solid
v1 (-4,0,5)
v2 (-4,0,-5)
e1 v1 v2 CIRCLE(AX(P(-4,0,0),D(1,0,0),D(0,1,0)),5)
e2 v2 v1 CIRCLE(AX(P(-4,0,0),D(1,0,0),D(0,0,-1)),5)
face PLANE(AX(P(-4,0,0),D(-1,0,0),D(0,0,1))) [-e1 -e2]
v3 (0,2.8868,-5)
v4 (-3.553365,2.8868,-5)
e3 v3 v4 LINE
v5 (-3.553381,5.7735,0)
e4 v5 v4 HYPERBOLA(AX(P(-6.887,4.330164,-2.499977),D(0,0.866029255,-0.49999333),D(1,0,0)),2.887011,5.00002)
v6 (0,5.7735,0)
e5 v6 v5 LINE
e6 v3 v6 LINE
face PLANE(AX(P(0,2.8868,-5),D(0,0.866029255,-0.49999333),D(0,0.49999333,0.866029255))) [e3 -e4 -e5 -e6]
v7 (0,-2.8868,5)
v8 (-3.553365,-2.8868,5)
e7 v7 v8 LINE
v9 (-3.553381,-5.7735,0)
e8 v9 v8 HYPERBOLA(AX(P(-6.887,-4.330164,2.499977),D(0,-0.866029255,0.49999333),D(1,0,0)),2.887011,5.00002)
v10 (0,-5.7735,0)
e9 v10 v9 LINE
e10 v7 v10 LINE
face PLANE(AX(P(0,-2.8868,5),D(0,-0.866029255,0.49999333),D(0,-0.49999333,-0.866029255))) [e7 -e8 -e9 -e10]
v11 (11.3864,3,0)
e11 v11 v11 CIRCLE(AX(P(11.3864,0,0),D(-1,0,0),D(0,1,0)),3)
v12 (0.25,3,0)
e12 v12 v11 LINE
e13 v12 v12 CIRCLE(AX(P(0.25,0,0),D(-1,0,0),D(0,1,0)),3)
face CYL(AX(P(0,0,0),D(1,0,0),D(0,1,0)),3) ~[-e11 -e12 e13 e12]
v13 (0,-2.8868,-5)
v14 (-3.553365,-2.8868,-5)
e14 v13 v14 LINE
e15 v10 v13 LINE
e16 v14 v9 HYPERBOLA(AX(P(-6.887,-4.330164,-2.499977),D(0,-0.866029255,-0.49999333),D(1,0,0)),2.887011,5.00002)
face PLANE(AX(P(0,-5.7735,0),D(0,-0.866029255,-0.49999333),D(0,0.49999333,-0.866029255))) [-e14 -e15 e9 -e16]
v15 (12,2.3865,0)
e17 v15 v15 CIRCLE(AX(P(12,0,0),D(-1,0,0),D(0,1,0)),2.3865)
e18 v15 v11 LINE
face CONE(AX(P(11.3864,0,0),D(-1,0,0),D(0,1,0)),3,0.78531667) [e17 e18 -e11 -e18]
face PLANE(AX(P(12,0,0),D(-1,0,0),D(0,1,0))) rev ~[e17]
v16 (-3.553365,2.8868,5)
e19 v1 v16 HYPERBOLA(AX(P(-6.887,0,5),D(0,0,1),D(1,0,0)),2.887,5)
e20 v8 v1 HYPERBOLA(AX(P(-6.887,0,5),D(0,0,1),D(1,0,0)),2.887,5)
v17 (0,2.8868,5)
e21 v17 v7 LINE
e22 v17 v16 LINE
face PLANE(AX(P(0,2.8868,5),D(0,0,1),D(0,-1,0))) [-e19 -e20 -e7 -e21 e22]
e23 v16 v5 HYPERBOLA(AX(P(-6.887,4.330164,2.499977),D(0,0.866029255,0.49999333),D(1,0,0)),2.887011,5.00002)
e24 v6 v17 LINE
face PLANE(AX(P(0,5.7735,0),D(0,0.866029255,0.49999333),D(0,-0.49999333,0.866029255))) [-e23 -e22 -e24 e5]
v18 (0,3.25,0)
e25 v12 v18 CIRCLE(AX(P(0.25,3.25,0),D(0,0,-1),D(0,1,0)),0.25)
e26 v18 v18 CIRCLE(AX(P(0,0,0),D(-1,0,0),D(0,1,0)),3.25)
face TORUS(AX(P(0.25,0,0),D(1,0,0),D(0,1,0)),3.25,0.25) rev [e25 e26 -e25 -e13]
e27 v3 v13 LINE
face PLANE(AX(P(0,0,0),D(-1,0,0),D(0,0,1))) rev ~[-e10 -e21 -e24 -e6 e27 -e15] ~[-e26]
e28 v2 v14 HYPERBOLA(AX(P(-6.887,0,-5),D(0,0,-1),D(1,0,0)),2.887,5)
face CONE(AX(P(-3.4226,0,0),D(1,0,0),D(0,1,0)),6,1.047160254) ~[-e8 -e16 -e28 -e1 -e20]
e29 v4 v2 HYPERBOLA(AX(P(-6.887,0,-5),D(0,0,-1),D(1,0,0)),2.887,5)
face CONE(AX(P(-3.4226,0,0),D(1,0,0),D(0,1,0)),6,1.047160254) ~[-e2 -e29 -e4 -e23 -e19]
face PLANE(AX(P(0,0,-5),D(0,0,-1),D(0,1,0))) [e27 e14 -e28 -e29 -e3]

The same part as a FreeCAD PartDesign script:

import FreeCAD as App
import Part
import Sketcher

V = App.Vector
Q = App.Units.Quantity


def edges_at(feature, points):
    """Names of the edges that pass closest to the given points."""
    edges = feature.Shape.Edges
    near = lambda p: min(range(len(edges)), key=lambda i: edges[i].distToShape(Part.Vertex(*p))[0])
    return sorted({f"Edge{near(p) + 1}" for p in points})


def add_polygon(sketch, points):
    """Adds a closed chain of lines whose ends are joined by coincident constraints."""
    first, n = sketch.GeometryCount, len(points)
    for a, b in zip(points, points[1:] + points[:1]):
        sketch.addGeometry(Part.LineSegment(App.Vector(*a, 0), App.Vector(*b, 0)), False)
    for i in range(n):
        sketch.addConstraint(Sketcher.Constraint("Coincident", first + i, 2, first + (i + 1) % n, 1))

doc = App.newDocument("Part")
params = doc.addObject("Spreadsheet::Sheet", "Params")
for row, (alias, value) in enumerate([
    ("sketch1_width", "12 mm"),
    ("sketch1_height", "3 mm"),
    ("revolution_angle", "360 deg"),
    ("pad1_length", "4 mm"),
    ("sketch3_height", "1 mm"),
    ("groove_angle", "360 deg"),
    ("chamfer_size", "0.6135 mm"),
    ("chamfer_size2", "0.6136 mm"),
    ("fillet_radius", "0.25 mm"),
], start=1):
    params.set(f"A{row}", alias)
    params.set(f"B{row}", "=" + value)
    params.setAlias(f"B{row}", alias)

body = doc.addObject("PartDesign::Body", "Body")

sketch1 = body.newObject("Sketcher::SketchObject", "Sketch")
sketch1.AttachmentSupport = (doc.getObject("XY_Plane"), [""])
sketch1.MapMode = "FlatFace"
add_polygon(sketch1, [(12, 3), (0, 3), (0, 0), (12, 0)])
sketch1.addConstraint(Sketcher.Constraint("Horizontal", 0))
sketch1.addConstraint(Sketcher.Constraint("Vertical", 1))
sketch1.addConstraint(Sketcher.Constraint("Horizontal", 2))
sketch1.addConstraint(Sketcher.Constraint("Vertical", 3))
sketch1.addConstraint(Sketcher.Constraint("Coincident", 1, 2, -1, 1))
sketch1.addConstraint(Sketcher.Constraint("DistanceX", 0, 2, 0, 1, 12.0))
sketch1.addConstraint(Sketcher.Constraint("DistanceY", 1, 2, 1, 1, 3.0))
sketch1.setExpression("Constraints[9]", "Params.sketch1_width")
sketch1.setExpression("Constraints[10]", "Params.sketch1_height")
revolution = body.newObject("PartDesign::Revolution", "Revolution")
revolution.Profile = sketch1
revolution.ReferenceAxis = (sketch1, ["H_Axis"])
revolution.setExpression("Angle", "Params.revolution_angle")

sketch2 = body.newObject("Sketcher::SketchObject", "Sketch001")
sketch2.AttachmentSupport = (doc.getObject("YZ_Plane"), [""])
sketch2.MapMode = "FlatFace"
add_polygon(sketch2, [(3, -5), (-3, -5), (-6, 0), (-3, 5), (3, 5), (6, 0)])
sketch2.addConstraint(Sketcher.Constraint("Horizontal", 0))
sketch2.addConstraint(Sketcher.Constraint("Horizontal", 3))
sketch2.addConstraint(Sketcher.Constraint("Symmetric", 0, 2, 3, 2, -1, 1))
sketch2.addConstraint(Sketcher.Constraint("Symmetric", 1, 2, 4, 2, -1, 1))
sketch2.addConstraint(Sketcher.Constraint("PointOnObject", 1, 2, -1))
sketch2.addConstraint(Sketcher.Constraint("Parallel", 2, 5))
sketch2.addConstraint(Sketcher.Constraint("Vertical", 0, 2, 2, 2))
sketch2.addConstraint(Sketcher.Constraint("DistanceY", 0, 2, 2, 2, 10.0))
sketch2.addConstraint(Sketcher.Constraint("Angle", 1, Q("119.9996 deg")))
sketch2.addConstraint(Sketcher.Constraint("DistanceX", 0, 2, 0, 1, 5.7736))
pad1 = body.newObject("PartDesign::Pad", "Pad")
pad1.Profile = sketch2
pad1.setExpression("Length", "Params.pad1_length")
pad1.Reversed = True

sketch3 = body.newObject("Sketcher::SketchObject", "Sketch002")
sketch3.AttachmentSupport = (doc.getObject("XY_Plane"), [""])
sketch3.MapMode = "FlatFace"
add_polygon(sketch3, [(-4, 5), (-3.4, 6), (-4, 6)])
sketch3.addConstraint(Sketcher.Constraint("Horizontal", 1))
sketch3.addConstraint(Sketcher.Constraint("Vertical", 2))
sketch3.addConstraint(Sketcher.Constraint("DistanceX", 1, 2, -1, 1, 4.0))
sketch3.addConstraint(Sketcher.Constraint("DistanceY", 2, 2, 2, 1, 1.0))
sketch3.addConstraint(Sketcher.Constraint("DistanceY", -1, 1, 0, 2, 6.0))
sketch3.addConstraint(Sketcher.Constraint("DistanceX", 1, 2, 1, 1, 0.5774))
sketch3.setExpression("Constraints[6]", "Params.sketch3_height")
groove = body.newObject("PartDesign::Groove", "Groove")
groove.Profile = sketch3
groove.ReferenceAxis = (sketch3, ["H_Axis"])
groove.setExpression("Angle", "Params.groove_angle")
doc.recompute()

chamfer = body.newObject("PartDesign::Chamfer", "Chamfer")
chamfer.Base = (groove, edges_at(groove, [(12, -3, 0)]))
chamfer.ChamferType = "Two distances"
chamfer.setExpression("Size", "Params.chamfer_size")
chamfer.setExpression("Size2", "Params.chamfer_size2")
doc.recompute()

fillet = body.newObject("PartDesign::Fillet", "Fillet")
fillet.Base = (chamfer, edges_at(chamfer, [(0, -3, 0)]))
fillet.setExpression("Radius", "Params.fillet_radius")

doc.recompute()
